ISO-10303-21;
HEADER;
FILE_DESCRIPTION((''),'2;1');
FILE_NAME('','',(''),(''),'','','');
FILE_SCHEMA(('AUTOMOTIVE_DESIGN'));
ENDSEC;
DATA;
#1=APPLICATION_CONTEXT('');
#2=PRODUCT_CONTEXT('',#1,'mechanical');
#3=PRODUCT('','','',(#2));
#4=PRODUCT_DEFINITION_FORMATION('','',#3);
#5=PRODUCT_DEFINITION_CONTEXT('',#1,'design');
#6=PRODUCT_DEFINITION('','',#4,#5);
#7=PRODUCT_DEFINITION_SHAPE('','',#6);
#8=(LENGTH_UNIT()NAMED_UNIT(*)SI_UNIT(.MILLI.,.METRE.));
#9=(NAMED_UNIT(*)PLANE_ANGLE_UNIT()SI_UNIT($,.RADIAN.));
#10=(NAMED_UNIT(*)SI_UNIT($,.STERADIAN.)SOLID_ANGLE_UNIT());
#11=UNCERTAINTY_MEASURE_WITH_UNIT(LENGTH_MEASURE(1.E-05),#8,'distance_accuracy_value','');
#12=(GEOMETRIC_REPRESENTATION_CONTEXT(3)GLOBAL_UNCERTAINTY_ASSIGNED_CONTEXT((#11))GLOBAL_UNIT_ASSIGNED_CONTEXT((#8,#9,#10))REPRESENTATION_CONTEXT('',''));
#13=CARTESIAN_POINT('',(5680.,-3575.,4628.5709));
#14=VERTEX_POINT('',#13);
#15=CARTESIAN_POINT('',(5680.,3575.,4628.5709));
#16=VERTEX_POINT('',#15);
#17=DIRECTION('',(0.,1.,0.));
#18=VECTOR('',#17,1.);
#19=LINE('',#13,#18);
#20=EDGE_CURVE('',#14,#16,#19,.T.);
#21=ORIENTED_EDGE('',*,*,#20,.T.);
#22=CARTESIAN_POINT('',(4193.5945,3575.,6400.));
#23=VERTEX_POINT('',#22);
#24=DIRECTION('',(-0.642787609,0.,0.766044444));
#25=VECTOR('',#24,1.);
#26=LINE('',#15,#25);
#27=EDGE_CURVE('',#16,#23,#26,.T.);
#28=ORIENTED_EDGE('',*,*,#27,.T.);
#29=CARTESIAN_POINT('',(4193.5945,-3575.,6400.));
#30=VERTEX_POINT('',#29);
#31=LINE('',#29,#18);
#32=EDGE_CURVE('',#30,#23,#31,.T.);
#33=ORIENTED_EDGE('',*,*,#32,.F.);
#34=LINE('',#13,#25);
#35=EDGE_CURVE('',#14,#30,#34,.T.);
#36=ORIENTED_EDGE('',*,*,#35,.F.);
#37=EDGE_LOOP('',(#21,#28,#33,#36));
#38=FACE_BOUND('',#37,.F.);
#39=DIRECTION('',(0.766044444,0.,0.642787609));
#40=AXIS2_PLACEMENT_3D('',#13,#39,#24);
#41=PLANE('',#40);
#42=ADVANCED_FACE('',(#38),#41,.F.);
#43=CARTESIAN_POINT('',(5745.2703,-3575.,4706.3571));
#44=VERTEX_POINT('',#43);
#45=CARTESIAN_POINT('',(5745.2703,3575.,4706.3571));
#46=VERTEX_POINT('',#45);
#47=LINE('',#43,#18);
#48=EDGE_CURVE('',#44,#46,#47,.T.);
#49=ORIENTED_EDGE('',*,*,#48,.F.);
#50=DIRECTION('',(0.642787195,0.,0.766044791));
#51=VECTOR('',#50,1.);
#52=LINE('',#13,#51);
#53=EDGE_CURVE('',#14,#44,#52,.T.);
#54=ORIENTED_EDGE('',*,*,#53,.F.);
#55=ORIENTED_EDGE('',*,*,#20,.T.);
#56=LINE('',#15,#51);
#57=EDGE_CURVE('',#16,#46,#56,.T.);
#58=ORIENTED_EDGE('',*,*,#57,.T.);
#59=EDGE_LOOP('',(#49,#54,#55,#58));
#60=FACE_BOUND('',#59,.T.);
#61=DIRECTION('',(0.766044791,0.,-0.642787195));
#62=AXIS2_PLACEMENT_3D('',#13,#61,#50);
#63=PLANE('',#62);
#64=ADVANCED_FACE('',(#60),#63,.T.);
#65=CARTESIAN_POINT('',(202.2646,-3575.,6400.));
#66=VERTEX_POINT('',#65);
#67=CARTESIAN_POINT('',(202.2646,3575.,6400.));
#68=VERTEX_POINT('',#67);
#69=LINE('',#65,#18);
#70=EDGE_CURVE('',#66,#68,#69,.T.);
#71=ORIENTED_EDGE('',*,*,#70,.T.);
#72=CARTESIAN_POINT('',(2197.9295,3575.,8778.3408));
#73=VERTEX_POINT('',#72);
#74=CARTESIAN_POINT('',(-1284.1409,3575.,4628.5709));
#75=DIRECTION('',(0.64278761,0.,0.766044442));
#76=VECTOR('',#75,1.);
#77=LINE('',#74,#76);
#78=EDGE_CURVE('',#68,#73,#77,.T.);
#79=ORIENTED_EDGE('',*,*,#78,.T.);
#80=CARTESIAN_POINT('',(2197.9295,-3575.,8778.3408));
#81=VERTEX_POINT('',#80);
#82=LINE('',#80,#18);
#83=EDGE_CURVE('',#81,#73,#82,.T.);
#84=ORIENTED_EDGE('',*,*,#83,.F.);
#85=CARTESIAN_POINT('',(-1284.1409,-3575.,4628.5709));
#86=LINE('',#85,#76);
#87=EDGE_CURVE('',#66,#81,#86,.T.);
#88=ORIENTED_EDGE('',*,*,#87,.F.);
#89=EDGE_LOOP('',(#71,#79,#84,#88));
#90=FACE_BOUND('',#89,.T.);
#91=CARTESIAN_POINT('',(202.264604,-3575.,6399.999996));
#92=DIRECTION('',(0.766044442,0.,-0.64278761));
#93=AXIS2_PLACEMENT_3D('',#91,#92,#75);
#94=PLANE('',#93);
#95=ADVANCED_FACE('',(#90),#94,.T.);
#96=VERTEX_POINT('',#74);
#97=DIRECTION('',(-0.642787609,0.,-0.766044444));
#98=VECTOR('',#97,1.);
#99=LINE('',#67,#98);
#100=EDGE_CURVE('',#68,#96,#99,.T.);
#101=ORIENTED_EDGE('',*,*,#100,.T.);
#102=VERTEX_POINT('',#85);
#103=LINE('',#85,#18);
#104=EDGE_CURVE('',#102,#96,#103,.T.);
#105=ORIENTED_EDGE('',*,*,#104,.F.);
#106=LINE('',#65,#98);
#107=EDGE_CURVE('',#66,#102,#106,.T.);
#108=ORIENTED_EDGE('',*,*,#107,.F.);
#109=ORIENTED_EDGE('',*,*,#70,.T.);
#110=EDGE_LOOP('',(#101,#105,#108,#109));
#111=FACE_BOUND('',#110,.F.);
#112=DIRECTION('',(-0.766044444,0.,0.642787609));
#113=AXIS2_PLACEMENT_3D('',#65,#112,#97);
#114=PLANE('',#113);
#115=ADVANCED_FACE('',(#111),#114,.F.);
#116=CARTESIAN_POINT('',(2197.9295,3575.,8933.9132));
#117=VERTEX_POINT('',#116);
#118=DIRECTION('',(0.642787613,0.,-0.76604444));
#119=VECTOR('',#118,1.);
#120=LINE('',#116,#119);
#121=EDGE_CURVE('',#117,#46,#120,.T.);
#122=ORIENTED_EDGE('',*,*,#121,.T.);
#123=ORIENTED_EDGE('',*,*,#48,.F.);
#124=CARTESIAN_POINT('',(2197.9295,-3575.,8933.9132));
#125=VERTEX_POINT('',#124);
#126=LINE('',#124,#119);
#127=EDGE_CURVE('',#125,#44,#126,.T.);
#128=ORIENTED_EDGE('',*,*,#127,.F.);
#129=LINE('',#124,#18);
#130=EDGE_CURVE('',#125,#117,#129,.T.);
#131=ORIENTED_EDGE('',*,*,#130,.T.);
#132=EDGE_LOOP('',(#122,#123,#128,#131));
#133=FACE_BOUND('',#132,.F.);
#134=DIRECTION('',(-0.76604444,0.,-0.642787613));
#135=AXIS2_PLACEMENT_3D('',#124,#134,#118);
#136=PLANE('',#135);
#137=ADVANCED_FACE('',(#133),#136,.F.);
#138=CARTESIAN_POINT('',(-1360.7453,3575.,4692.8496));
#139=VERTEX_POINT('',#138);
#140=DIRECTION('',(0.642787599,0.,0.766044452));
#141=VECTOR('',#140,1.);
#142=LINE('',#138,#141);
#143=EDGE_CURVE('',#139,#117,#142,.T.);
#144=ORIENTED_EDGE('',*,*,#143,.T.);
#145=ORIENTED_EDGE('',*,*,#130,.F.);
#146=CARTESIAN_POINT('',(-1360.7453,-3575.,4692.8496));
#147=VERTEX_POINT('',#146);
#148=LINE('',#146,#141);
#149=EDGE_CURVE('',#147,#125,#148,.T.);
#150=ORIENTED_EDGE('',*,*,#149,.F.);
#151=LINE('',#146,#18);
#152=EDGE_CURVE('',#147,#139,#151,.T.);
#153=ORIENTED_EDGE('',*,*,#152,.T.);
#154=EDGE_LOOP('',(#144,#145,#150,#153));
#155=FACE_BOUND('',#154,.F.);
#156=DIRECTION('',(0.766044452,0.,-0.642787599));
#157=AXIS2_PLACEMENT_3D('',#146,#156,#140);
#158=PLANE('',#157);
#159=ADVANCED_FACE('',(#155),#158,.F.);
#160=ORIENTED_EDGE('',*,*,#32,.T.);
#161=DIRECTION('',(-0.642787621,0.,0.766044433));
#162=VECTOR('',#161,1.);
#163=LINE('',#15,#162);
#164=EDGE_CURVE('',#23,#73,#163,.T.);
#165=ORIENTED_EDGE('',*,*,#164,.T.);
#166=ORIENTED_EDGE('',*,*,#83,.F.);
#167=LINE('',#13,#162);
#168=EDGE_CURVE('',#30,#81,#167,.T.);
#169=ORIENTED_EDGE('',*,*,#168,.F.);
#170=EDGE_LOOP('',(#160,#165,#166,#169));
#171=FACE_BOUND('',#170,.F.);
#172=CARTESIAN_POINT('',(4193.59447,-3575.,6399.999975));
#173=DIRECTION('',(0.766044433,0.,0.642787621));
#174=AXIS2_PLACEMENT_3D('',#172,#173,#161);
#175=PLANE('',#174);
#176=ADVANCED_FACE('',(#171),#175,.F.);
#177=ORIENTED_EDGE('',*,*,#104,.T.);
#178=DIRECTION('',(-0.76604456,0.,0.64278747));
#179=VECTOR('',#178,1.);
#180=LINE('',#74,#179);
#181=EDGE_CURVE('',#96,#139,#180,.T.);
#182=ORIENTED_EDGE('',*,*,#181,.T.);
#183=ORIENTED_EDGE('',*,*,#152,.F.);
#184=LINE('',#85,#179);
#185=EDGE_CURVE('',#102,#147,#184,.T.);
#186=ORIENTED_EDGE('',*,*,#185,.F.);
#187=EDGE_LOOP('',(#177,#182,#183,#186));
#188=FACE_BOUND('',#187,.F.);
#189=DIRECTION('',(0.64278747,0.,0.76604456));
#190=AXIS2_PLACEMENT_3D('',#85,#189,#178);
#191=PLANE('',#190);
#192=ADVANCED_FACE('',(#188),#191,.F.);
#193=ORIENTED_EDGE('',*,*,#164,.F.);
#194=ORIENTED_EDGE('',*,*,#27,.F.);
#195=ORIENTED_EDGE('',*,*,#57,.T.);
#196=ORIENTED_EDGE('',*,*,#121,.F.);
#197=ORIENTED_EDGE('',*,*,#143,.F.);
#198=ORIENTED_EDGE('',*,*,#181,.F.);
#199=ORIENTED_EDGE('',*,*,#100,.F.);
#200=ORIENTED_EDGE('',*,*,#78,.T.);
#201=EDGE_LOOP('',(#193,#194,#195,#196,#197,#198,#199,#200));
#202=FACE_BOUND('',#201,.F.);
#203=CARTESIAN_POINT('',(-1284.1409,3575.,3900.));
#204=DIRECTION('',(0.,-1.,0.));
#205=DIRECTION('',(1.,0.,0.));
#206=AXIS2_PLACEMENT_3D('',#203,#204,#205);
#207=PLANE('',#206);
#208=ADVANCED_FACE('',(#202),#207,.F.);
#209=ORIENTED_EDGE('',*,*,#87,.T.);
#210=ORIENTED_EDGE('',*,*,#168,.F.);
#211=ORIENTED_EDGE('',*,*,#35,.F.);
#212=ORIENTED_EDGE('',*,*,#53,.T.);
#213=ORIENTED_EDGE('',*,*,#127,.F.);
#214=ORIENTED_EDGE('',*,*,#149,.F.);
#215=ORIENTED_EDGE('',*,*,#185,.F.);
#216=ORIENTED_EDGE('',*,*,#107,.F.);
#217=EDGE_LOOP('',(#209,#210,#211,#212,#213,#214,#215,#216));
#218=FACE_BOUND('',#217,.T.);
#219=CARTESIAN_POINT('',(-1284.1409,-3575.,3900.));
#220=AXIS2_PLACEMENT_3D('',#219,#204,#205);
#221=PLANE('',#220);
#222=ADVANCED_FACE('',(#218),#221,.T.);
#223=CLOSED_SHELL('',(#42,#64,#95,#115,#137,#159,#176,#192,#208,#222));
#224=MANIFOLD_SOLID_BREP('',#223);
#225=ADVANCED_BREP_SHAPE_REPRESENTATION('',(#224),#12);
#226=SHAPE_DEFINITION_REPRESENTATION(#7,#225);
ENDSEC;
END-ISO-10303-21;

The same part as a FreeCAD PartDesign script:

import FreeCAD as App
import Part
import Sketcher
Q = App.Units.Quantity


def add_polygon(sketch, points):
    """Adds a closed chain of lines whose ends are joined by coincident constraints."""
    first, n = sketch.GeometryCount, len(points)
    for a, b in zip(points, points[1:] + points[:1]):
        sketch.addGeometry(Part.LineSegment(App.Vector(*a, 0), App.Vector(*b, 0)), False)
    for i in range(n):
        sketch.addConstraint(Sketcher.Constraint("Coincident", first + i, 2, first + (i + 1) % n, 1))

doc = App.newDocument("Part")
body = doc.addObject("PartDesign::Body", "Body")

sketch1 = doc.addObject("Sketcher::SketchObject", "Sketch")
body.addObject(sketch1)
sketch1.AttachmentSupport = (doc.XZ_Plane, [""])
sketch1.MapMode = "FlatFace"
sketch1.AttachmentOffset = App.Placement(App.Vector(0, 0, 3575), App.Rotation())
add_polygon(sketch1, [(-1284, 4629), (202, 6400), (2198, 8778), (4194, 6400), (5680, 4629), (5745, 4706), (2198, 8934), (-1361, 4693)])
sketch1.addConstraint([
    Sketcher.Constraint("Parallel", 0, 1),
    Sketcher.Constraint("Parallel", 2, 3),
    Sketcher.Constraint("Parallel", 1, 4),
    Sketcher.Constraint("Parallel", 3, 5),
    Sketcher.Constraint("Parallel", 4, 6),
    Sketcher.Constraint("Perpendicular", 6, 7),
    Sketcher.Constraint("Horizontal", 0, 2, 2, 2),
    Sketcher.Constraint("Horizontal", 3, 2, 7, 2),
    Sketcher.Constraint("Vertical", 1, 2, 5, 2),
    Sketcher.Constraint("Equal", 1, 2),
    Sketcher.Constraint("Distance", 7, Q("100 mm")),
    Sketcher.Constraint("Angle", 0, Q("50 deg")),
    Sketcher.Constraint("DistanceY", -1, 1, 0, 2, Q("6400 mm")),
    Sketcher.Constraint("DistanceX", -1, 1, 3, 2, Q("5680 mm")),
    Sketcher.Constraint("DistanceY", 3, 2, 1, 2, Q("4149.77 mm")),
    Sketcher.Constraint("DistanceX", 6, 2, 0, 2, Q("1563.01 mm")),
])
pad1 = doc.addObject("PartDesign::Pad", "Pad")
body.addObject(pad1)
pad1.Profile = sketch1
pad1.Length = 7150
pad1.Reversed = True

doc.recompute()
